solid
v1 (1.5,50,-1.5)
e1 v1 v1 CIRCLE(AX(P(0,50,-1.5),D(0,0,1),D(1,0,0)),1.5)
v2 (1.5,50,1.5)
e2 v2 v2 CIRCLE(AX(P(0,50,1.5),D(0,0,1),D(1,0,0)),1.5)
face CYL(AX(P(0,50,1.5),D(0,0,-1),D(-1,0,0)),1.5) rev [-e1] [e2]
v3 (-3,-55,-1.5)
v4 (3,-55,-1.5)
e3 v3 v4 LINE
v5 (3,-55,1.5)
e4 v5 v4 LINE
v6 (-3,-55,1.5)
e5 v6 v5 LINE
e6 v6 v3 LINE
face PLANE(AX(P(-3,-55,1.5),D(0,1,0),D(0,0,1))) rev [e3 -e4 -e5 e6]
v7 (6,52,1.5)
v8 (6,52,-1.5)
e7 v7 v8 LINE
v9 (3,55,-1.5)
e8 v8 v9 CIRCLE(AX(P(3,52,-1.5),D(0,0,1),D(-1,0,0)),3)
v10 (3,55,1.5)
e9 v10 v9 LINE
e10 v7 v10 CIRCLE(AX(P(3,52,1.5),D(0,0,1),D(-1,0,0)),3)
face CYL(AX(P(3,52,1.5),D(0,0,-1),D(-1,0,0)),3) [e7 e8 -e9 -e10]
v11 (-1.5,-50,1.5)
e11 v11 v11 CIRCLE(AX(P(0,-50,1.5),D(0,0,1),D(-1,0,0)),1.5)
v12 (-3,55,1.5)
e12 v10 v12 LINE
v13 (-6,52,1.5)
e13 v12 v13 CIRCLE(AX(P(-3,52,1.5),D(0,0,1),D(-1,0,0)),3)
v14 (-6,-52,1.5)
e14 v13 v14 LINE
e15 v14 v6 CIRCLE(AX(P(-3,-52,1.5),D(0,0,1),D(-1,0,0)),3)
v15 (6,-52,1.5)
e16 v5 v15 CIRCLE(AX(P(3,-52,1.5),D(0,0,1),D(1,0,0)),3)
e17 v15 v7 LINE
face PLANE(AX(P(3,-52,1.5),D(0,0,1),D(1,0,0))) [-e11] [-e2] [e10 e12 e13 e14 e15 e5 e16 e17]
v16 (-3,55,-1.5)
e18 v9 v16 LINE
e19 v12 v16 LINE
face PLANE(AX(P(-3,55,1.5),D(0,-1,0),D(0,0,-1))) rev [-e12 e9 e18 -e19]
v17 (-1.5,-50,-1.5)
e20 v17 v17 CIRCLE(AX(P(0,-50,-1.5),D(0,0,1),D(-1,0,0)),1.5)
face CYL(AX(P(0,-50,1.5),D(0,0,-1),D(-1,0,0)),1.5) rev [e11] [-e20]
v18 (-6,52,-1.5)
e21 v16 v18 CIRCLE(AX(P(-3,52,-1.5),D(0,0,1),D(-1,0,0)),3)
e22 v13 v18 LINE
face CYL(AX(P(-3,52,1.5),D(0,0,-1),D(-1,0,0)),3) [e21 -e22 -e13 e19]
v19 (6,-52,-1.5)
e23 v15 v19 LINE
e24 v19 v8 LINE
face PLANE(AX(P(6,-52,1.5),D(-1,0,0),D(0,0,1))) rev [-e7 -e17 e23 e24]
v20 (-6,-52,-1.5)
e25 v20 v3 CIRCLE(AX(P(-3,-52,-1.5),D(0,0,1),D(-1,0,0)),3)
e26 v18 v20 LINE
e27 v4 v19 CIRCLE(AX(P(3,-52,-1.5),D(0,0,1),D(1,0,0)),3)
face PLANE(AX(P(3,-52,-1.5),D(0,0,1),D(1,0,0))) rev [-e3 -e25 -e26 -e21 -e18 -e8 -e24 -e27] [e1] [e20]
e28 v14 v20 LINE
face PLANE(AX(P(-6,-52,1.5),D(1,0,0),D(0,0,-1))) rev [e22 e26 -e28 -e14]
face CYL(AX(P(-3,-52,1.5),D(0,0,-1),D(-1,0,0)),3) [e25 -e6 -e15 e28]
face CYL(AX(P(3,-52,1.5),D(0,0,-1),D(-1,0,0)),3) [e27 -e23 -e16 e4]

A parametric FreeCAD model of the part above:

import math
import FreeCAD as App
import Part
import Sketcher
Q = App.Units.Quantity

doc = App.newDocument("Part")
body = doc.addObject("PartDesign::Body", "Body")

# Sketch on XY plane
sketch1 = body.newObject("Sketcher::SketchObject", "Sketch")
sketch1.AttachmentSupport = (doc.getObject("XY_Plane"), [""])
sketch1.MapMode = "FlatFace"
sketch1.addGeometry([
    Part.LineSegment(App.Vector(-3, -55, 0), App.Vector(3, -55, 0)),  # 0
    Part.ArcOfCircle(Part.Circle(App.Vector(3, -52, 0), App.Vector(0, 0, 1), 3), math.radians(-90), math.radians(0)),  # 1
    Part.LineSegment(App.Vector(6, -52, 0), App.Vector(6, 52, 0)),  # 2
    Part.ArcOfCircle(Part.Circle(App.Vector(3, 52, 0), App.Vector(0, 0, 1), 3), math.radians(0), math.radians(90)),  # 3
    Part.LineSegment(App.Vector(3, 55, 0), App.Vector(-3, 55, 0)),  # 4
    Part.ArcOfCircle(Part.Circle(App.Vector(-3, 52, 0), App.Vector(0, 0, 1), 3), math.radians(90), math.radians(180)),  # 5
    Part.LineSegment(App.Vector(-6, 52, 0), App.Vector(-6, -52, 0)),  # 6
    Part.ArcOfCircle(Part.Circle(App.Vector(-3, -52, 0), App.Vector(0, 0, 1), 3), math.radians(180), math.radians(270)),  # 7
    Part.Circle(App.Vector(0, -50, 0), App.Vector(0, 0, 1), 1.5),  # 8
    Part.Circle(App.Vector(0, 50, 0), App.Vector(0, 0, 1), 1.5),  # 9
], False)
sketch1.addConstraint([
    Sketcher.Constraint("Tangent", 0, 2, 1, 1),
    Sketcher.Constraint("Tangent", 1, 2, 2, 1),
    Sketcher.Constraint("Tangent", 2, 2, 3, 1),
    Sketcher.Constraint("Tangent", 3, 2, 4, 1),
    Sketcher.Constraint("Tangent", 4, 2, 5, 1),
    Sketcher.Constraint("Tangent", 5, 2, 6, 1),
    Sketcher.Constraint("Tangent", 6, 2, 7, 1),
    Sketcher.Constraint("Tangent", 7, 2, 0, 1),
    Sketcher.Constraint("Horizontal", 0),
    Sketcher.Constraint("Vertical", 2),
    Sketcher.Constraint("Horizontal", 4),
    Sketcher.Constraint("Vertical", 6),
    Sketcher.Constraint("Equal", 1, 3),
    Sketcher.Constraint("Equal", 3, 5),
    Sketcher.Constraint("Equal", 5, 7),
    Sketcher.Constraint("Equal", 8, 9),
    Sketcher.Constraint("Symmetric", 1, 3, 5, 3, -1, 1),
    Sketcher.Constraint("Symmetric", 8, 3, 9, 3, -1, 1),
    Sketcher.Constraint("PointOnObject", 8, 3, -2),
    Sketcher.Constraint("Diameter", 8, Q("3 mm")),
    Sketcher.Constraint("Radius", 1, Q("3 mm")),
    Sketcher.Constraint("DistanceX", 0, 1, 0, 2, Q("6 mm")),
    Sketcher.Constraint("DistanceY", 2, 1, 2, 2, Q("104 mm")),
    Sketcher.Constraint("DistanceY", 8, 3, -1, 1, Q("50 mm")),
])
pad1 = body.newObject("PartDesign::Pad", "Pad")
pad1.Profile = sketch1
pad1.Length = 3
pad1.Midplane = True

doc.recompute()
